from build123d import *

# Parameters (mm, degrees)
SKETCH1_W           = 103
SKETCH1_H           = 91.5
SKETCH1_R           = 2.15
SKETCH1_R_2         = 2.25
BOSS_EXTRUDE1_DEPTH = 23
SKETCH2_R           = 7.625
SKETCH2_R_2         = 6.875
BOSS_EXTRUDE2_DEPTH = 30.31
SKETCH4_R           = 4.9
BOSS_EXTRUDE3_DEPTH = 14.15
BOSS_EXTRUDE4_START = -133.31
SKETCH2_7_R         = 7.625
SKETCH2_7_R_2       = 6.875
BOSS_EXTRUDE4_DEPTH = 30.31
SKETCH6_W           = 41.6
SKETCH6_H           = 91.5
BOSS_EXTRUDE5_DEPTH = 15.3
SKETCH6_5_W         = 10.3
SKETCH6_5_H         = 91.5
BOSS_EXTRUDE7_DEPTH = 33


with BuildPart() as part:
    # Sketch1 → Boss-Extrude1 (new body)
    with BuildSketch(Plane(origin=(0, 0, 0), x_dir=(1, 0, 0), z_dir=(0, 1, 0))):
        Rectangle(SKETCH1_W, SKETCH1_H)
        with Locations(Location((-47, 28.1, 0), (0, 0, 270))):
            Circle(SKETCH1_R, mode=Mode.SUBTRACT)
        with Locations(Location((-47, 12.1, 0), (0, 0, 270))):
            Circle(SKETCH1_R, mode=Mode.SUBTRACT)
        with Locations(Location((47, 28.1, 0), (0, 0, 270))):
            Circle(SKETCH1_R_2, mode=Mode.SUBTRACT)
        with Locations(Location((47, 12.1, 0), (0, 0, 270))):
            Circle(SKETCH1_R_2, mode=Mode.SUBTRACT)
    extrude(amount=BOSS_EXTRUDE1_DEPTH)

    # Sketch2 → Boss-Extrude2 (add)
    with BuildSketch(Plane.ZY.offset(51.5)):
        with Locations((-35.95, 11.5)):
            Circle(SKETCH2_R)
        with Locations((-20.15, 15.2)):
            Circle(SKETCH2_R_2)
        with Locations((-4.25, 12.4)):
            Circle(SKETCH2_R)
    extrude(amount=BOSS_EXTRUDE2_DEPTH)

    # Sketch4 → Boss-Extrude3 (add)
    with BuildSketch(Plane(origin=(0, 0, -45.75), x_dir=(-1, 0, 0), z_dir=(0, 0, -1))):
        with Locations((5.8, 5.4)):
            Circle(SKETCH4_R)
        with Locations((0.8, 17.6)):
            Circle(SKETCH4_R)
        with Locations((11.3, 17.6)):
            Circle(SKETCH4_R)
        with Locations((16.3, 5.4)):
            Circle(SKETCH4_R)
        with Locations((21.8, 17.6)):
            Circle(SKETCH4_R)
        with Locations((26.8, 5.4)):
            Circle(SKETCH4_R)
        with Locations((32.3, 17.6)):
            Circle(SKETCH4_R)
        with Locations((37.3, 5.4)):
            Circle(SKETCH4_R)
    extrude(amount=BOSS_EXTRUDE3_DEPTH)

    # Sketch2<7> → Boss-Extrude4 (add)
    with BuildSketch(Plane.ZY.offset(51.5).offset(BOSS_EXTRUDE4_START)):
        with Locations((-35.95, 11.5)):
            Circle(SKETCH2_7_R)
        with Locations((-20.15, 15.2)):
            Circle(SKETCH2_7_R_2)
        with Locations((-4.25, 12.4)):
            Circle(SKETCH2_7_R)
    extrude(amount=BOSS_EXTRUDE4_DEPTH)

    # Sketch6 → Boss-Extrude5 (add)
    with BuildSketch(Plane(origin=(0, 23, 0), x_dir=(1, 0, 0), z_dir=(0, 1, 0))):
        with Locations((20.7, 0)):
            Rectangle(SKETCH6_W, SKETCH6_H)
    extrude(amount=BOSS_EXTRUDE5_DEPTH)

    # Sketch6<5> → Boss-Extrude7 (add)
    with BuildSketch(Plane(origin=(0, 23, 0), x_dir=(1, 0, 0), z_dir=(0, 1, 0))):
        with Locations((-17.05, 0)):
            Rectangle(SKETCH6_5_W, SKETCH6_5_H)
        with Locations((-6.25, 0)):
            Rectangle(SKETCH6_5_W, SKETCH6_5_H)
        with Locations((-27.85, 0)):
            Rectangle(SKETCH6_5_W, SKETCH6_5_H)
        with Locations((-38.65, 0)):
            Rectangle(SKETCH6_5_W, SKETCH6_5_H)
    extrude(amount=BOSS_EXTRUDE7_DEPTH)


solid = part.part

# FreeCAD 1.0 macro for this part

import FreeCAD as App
import Part
import Sketcher


def add_polygon(sketch, points):
    """Adds a closed chain of lines whose ends are joined by coincident constraints."""
    first, n = sketch.GeometryCount, len(points)
    for a, b in zip(points, points[1:] + points[:1]):
        sketch.addGeometry(Part.LineSegment(App.Vector(*a, 0), App.Vector(*b, 0)), False)
    for i in range(n):
        sketch.addConstraint(Sketcher.Constraint("Coincident", first + i, 2, first + (i + 1) % n, 1))

doc = App.newDocument("Part")
params = doc.addObject("Spreadsheet::Sheet", "Params")
for row, (alias, value) in enumerate([
    ("sketch1_diameter", "4.3 mm"),
    ("sketch1_diameter2", "4.5 mm"),
    ("sketch1_width", "103 mm"),
    ("sketch1_height", "91.5 mm"),
    ("pad1_length", "23 mm"),
    ("sketch2_diameter", "15.25 mm"),
    ("sketch2_diameter2", "13.75 mm"),
    ("pad2_length", "30.31 mm"),
    ("sketch3_diameter", "9.8 mm"),
    ("pad3_length", "14.15 mm"),
    ("sketch4_diameter", "15.25 mm"),
    ("sketch4_diameter2", "13.75 mm"),
    ("pad4_length", "30.31 mm"),
    ("sketch5_width", "41.6 mm"),
    ("sketch5_height", "91.5 mm"),
    ("pad5_length", "15.3 mm"),
    ("sketch6_width", "10.3 mm"),
    ("sketch6_height", "91.5 mm"),
    ("pad6_length", "33 mm"),
], start=1):
    params.set(f"A{row}", alias)
    params.set(f"B{row}", "=" + value)
    params.setAlias(f"B{row}", alias)

body = doc.addObject("PartDesign::Body", "Body")

# Sketch on XZ plane
sketch1 = body.newObject("Sketcher::SketchObject", "Sketch")
sketch1.AttachmentSupport = (doc.getObject("XZ_Plane"), [""])
sketch1.MapMode = "FlatFace"
add_polygon(sketch1, [(-51.5, -45.8), (-51.5, 45.8), (51.5, 45.8), (51.5, -45.8)])  # lines 0-3
sketch1.addGeometry(Part.Circle(App.Vector(-47, -12.1, 0), App.Vector(0, 0, 1), 2.1), False)  # 4
sketch1.addGeometry(Part.Circle(App.Vector(47, -12.1, 0), App.Vector(0, 0, 1), 2.2), False)  # 5
sketch1.addGeometry(Part.Circle(App.Vector(-47, -28.1, 0), App.Vector(0, 0, 1), 2.1), False)  # 6
sketch1.addGeometry(Part.Circle(App.Vector(47, -28.1, 0), App.Vector(0, 0, 1), 2.2), False)  # 7
sketch1.addConstraint([
    Sketcher.Constraint("Vertical", 0),
    Sketcher.Constraint("Horizontal", 1),
    Sketcher.Constraint("Vertical", 2),
    Sketcher.Constraint("Horizontal", 3),
    Sketcher.Constraint("Equal", 4, 6),
    Sketcher.Constraint("Equal", 5, 7),
    Sketcher.Constraint("Symmetric", 0, 2, 2, 2, -1, 1),
    Sketcher.Constraint("Symmetric", 4, 3, 5, 3, -2),
    Sketcher.Constraint("Symmetric", 6, 3, 7, 3, -2),
    Sketcher.Constraint("Vertical", 4, 3, 6, 3),
    Sketcher.Constraint("Diameter", 4, 4.3),
    Sketcher.Constraint("Diameter", 5, 4.5),
    Sketcher.Constraint("DistanceX", 1, 1, 1, 2, 103.0),
    Sketcher.Constraint("DistanceY", 0, 1, 0, 2, 91.5),
    Sketcher.Constraint("DistanceX", 4, 3, -1, 1, 47.0),
    Sketcher.Constraint("DistanceY", 6, 3, 4, 3, 16.0),
    Sketcher.Constraint("DistanceY", 4, 3, -1, 1, 12.1),
])
sketch1.setExpression("Constraints[14]", "Params.sketch1_diameter")
sketch1.setExpression("Constraints[15]", "Params.sketch1_diameter2")
sketch1.setExpression("Constraints[16]", "Params.sketch1_width")
sketch1.setExpression("Constraints[17]", "Params.sketch1_height")
pad1 = body.newObject("PartDesign::Pad", "Pad")
pad1.Profile = sketch1
pad1.setExpression("Length", "Params.pad1_length")
pad1.Reversed = True

# Sketch on YZ plane
sketch2 = body.newObject("Sketcher::SketchObject", "Sketch001")
sketch2.AttachmentSupport = (doc.getObject("YZ_Plane"), [""])
sketch2.MapMode = "FlatFace"
sketch2.AttachmentOffset = App.Placement(App.Vector(0, 0, -51.5), App.Rotation())
sketch2.addGeometry([
    Part.Circle(App.Vector(12, -36, 0), App.Vector(0, 0, 1), 8),
    Part.Circle(App.Vector(15, -20, 0), App.Vector(0, 0, 1), 7),
    Part.Circle(App.Vector(12, -4, 0), App.Vector(0, 0, 1), 8),
], False)
sketch2.addConstraint([
    Sketcher.Constraint("Equal", 0, 2),
    Sketcher.Constraint("Diameter", 0, 15.25),
    Sketcher.Constraint("Diameter", 1, 13.75),
    Sketcher.Constraint("DistanceX", -1, 1, 0, 3, 11.5),
    Sketcher.Constraint("DistanceX", -1, 1, 1, 3, 15.2),
    Sketcher.Constraint("DistanceX", -1, 1, 2, 3, 12.4),
    Sketcher.Constraint("DistanceY", 0, 3, 1, 3, 15.8),
    Sketcher.Constraint("DistanceY", 1, 3, 2, 3, 15.9),
    Sketcher.Constraint("DistanceY", 0, 3, -1, 1, 35.95),
])
sketch2.setExpression("Constraints[1]", "Params.sketch2_diameter")
sketch2.setExpression("Constraints[2]", "Params.sketch2_diameter2")
pad2 = body.newObject("PartDesign::Pad", "Pad001")
pad2.Profile = sketch2
pad2.setExpression("Length", "Params.pad2_length")
pad2.Reversed = True

# Sketch on XY plane
sketch3 = body.newObject("Sketcher::SketchObject", "Sketch002")
sketch3.AttachmentSupport = (doc.getObject("XY_Plane"), [""])
sketch3.MapMode = "FlatFace"
sketch3.AttachmentOffset = App.Placement(App.Vector(0, 0, -45.75), App.Rotation())
sketch3.addGeometry([
    Part.Circle(App.Vector(-5.8, 5.4, 0), App.Vector(0, 0, 1), 4.9),  # 0
    Part.Circle(App.Vector(-0.8, 17.6, 0), App.Vector(0, 0, 1), 4.9),  # 1
    Part.Circle(App.Vector(-11.3, 17.6, 0), App.Vector(0, 0, 1), 4.9),  # 2
    Part.Circle(App.Vector(-16.3, 5.4, 0), App.Vector(0, 0, 1), 4.9),  # 3
    Part.Circle(App.Vector(-21.8, 17.6, 0), App.Vector(0, 0, 1), 4.9),  # 4
    Part.Circle(App.Vector(-26.8, 5.4, 0), App.Vector(0, 0, 1), 4.9),  # 5
    Part.Circle(App.Vector(-32.3, 17.6, 0), App.Vector(0, 0, 1), 4.9),  # 6
    Part.Circle(App.Vector(-37.3, 5.4, 0), App.Vector(0, 0, 1), 4.9),  # 7
], False)
sketch3.addConstraint([
    Sketcher.Constraint("Equal", 0, 1),
    Sketcher.Constraint("Equal", 1, 2),
    Sketcher.Constraint("Equal", 2, 3),
    Sketcher.Constraint("Equal", 3, 4),
    Sketcher.Constraint("Equal", 4, 5),
    Sketcher.Constraint("Equal", 5, 6),
    Sketcher.Constraint("Equal", 6, 7),
    Sketcher.Constraint("Horizontal", 1, 3, 2, 3),
    Sketcher.Constraint("Horizontal", 0, 3, 3, 3),
    Sketcher.Constraint("Horizontal", 2, 3, 4, 3),
    Sketcher.Constraint("Horizontal", 3, 3, 5, 3),
    Sketcher.Constraint("Horizontal", 4, 3, 6, 3),
    Sketcher.Constraint("Horizontal", 5, 3, 7, 3),
    Sketcher.Constraint("Diameter", 0, 9.8),
    Sketcher.Constraint("DistanceX", 0, 3, 1, 3, 5.0),
    Sketcher.Constraint("DistanceX", 3, 3, 2, 3, 5.0),
    Sketcher.Constraint("DistanceX", 4, 3, 0, 3, 16.0),
    Sketcher.Constraint("DistanceX", 5, 3, 4, 3, 5.0),
    Sketcher.Constraint("DistanceX", 6, 3, 3, 3, 16.0),
    Sketcher.Constraint("DistanceX", 7, 3, 6, 3, 5.0),
    Sketcher.Constraint("DistanceX", 0, 3, -1, 1, 5.8),
    Sketcher.Constraint("DistanceY", -1, 1, 0, 3, 5.4),
    Sketcher.Constraint("DistanceY", -1, 1, 1, 3, 17.6),
    Sketcher.Constraint("DistanceX", 2, 3, -1, 1, 11.3),
])
sketch3.setExpression("Constraints[13]", "Params.sketch3_diameter")
pad3 = body.newObject("PartDesign::Pad", "Pad002")
pad3.Profile = sketch3
pad3.setExpression("Length", "Params.pad3_length")
pad3.Reversed = True

# Sketch on YZ plane
sketch4 = body.newObject("Sketcher::SketchObject", "Sketch003")
sketch4.AttachmentSupport = (doc.getObject("YZ_Plane"), [""])
sketch4.MapMode = "FlatFace"
sketch4.AttachmentOffset = App.Placement(App.Vector(0, 0, 81.81), App.Rotation())
sketch4.addGeometry([
    Part.Circle(App.Vector(12, -36, 0), App.Vector(0, 0, 1), 8),
    Part.Circle(App.Vector(15, -20, 0), App.Vector(0, 0, 1), 7),
    Part.Circle(App.Vector(12, -4, 0), App.Vector(0, 0, 1), 8),
], False)
sketch4.addConstraint([
    Sketcher.Constraint("Equal", 0, 2),
    Sketcher.Constraint("Diameter", 0, 15.25),
    Sketcher.Constraint("Diameter", 1, 13.75),
    Sketcher.Constraint("DistanceX", -1, 1, 0, 3, 11.5),
    Sketcher.Constraint("DistanceX", -1, 1, 1, 3, 15.2),
    Sketcher.Constraint("DistanceX", -1, 1, 2, 3, 12.4),
    Sketcher.Constraint("DistanceY", 0, 3, 1, 3, 15.8),
    Sketcher.Constraint("DistanceY", 1, 3, 2, 3, 15.9),
    Sketcher.Constraint("DistanceY", 0, 3, -1, 1, 35.95),
])
sketch4.setExpression("Constraints[1]", "Params.sketch4_diameter")
sketch4.setExpression("Constraints[2]", "Params.sketch4_diameter2")
pad4 = body.newObject("PartDesign::Pad", "Pad003")
pad4.Profile = sketch4
pad4.setExpression("Length", "Params.pad4_length")
pad4.Reversed = True

# Sketch on XZ plane
sketch5 = body.newObject("Sketcher::SketchObject", "Sketch004")
sketch5.AttachmentSupport = (doc.getObject("XZ_Plane"), [""])
sketch5.MapMode = "FlatFace"
sketch5.AttachmentOffset = App.Placement(App.Vector(0, 0, -23), App.Rotation())
add_polygon(sketch5, [(0, -46), (0, 46), (42, 46), (42, -46)])  # lines 0-3
sketch5.addConstraint([
    Sketcher.Constraint("Vertical", 0),
    Sketcher.Constraint("Horizontal", 1),
    Sketcher.Constraint("Vertical", 2),
    Sketcher.Constraint("Horizontal", 3),
    Sketcher.Constraint("DistanceX", 1, 1, 1, 2, 41.6),
    Sketcher.Constraint("DistanceY", 0, 1, 0, 2, 91.5),
    Sketcher.Constraint("DistanceX", 0, 2, -1, 1, 0.1),
    Sketcher.Constraint("DistanceY", -1, 1, 0, 2, 45.75),
])
sketch5.setExpression("Constraints[8]", "Params.sketch5_width")
sketch5.setExpression("Constraints[9]", "Params.sketch5_height")
pad5 = body.newObject("PartDesign::Pad", "Pad004")
pad5.Profile = sketch5
pad5.setExpression("Length", "Params.pad5_length")
pad5.Reversed = True

# Sketch on XZ plane
sketch6 = body.newObject("Sketcher::SketchObject", "Sketch005")
sketch6.AttachmentSupport = (doc.getObject("XZ_Plane"), [""])
sketch6.MapMode = "FlatFace"
sketch6.AttachmentOffset = App.Placement(App.Vector(0, 0, -23), App.Rotation())
add_polygon(sketch6, [(-22, -46), (-22, 46), (-12, 46), (-12, -46)])  # lines 0-3
add_polygon(sketch6, [(-11, -46), (-11, 46), (-1, 46), (-1, -46)])  # lines 4-7
add_polygon(sketch6, [(-33, -46), (-33, 46), (-23, 46), (-23, -46)])  # lines 8-11
add_polygon(sketch6, [(-44, -46), (-44, 46), (-34, 46), (-34, -46)])  # lines 12-15
sketch6.addConstraint([
    Sketcher.Constraint("Vertical", 0),
    Sketcher.Constraint("Horizontal", 1),
    Sketcher.Constraint("Vertical", 2),
    Sketcher.Constraint("Horizontal", 3),
    Sketcher.Constraint("Vertical", 4),
    Sketcher.Constraint("Horizontal", 5),
    Sketcher.Constraint("Vertical", 6),
    Sketcher.Constraint("Horizontal", 7),
    Sketcher.Constraint("Vertical", 8),
    Sketcher.Constraint("Horizontal", 9),
    Sketcher.Constraint("Vertical", 10),
    Sketcher.Constraint("Horizontal", 11),
    Sketcher.Constraint("Vertical", 12),
    Sketcher.Constraint("Horizontal", 13),
    Sketcher.Constraint("Vertical", 14),
    Sketcher.Constraint("Horizontal", 15),
    Sketcher.Constraint("Horizontal", 1, 2, 4, 2),
    Sketcher.Constraint("Horizontal", 3, 2, 6, 2),
    Sketcher.Constraint("Horizontal", 5, 2, 8, 2),
    Sketcher.Constraint("Horizontal", 7, 2, 10, 2),
    Sketcher.Constraint("Horizontal", 9, 2, 12, 2),
    Sketcher.Constraint("Horizontal", 11, 2, 14, 2),
    Sketcher.Constraint("Equal", 3, 5),
    Sketcher.Constraint("Equal", 7, 9),
    Sketcher.Constraint("Equal", 11, 13),
    Sketcher.Constraint("DistanceX", 1, 1, 1, 2, 10.3),
    Sketcher.Constraint("DistanceY", 0, 1, 0, 2, 91.5),
    Sketcher.Constraint("DistanceX", 8, 2, -1, 1, 33.0),
    Sketcher.Constraint("DistanceX", 0, 2, -1, 1, 22.2),
    Sketcher.Constraint("DistanceX", 4, 2, -1, 1, 11.4),
    Sketcher.Constraint("DistanceX", 12, 2, -1, 1, 43.8),
    Sketcher.Constraint("DistanceY", -1, 1, 0, 2, 45.75),
])
sketch6.setExpression("Constraints[41]", "Params.sketch6_width")
sketch6.setExpression("Constraints[42]", "Params.sketch6_height")
pad6 = body.newObject("PartDesign::Pad", "Pad005")
pad6.Profile = sketch6
pad6.setExpression("Length", "Params.pad6_length")
pad6.Reversed = True

doc.recompute()
